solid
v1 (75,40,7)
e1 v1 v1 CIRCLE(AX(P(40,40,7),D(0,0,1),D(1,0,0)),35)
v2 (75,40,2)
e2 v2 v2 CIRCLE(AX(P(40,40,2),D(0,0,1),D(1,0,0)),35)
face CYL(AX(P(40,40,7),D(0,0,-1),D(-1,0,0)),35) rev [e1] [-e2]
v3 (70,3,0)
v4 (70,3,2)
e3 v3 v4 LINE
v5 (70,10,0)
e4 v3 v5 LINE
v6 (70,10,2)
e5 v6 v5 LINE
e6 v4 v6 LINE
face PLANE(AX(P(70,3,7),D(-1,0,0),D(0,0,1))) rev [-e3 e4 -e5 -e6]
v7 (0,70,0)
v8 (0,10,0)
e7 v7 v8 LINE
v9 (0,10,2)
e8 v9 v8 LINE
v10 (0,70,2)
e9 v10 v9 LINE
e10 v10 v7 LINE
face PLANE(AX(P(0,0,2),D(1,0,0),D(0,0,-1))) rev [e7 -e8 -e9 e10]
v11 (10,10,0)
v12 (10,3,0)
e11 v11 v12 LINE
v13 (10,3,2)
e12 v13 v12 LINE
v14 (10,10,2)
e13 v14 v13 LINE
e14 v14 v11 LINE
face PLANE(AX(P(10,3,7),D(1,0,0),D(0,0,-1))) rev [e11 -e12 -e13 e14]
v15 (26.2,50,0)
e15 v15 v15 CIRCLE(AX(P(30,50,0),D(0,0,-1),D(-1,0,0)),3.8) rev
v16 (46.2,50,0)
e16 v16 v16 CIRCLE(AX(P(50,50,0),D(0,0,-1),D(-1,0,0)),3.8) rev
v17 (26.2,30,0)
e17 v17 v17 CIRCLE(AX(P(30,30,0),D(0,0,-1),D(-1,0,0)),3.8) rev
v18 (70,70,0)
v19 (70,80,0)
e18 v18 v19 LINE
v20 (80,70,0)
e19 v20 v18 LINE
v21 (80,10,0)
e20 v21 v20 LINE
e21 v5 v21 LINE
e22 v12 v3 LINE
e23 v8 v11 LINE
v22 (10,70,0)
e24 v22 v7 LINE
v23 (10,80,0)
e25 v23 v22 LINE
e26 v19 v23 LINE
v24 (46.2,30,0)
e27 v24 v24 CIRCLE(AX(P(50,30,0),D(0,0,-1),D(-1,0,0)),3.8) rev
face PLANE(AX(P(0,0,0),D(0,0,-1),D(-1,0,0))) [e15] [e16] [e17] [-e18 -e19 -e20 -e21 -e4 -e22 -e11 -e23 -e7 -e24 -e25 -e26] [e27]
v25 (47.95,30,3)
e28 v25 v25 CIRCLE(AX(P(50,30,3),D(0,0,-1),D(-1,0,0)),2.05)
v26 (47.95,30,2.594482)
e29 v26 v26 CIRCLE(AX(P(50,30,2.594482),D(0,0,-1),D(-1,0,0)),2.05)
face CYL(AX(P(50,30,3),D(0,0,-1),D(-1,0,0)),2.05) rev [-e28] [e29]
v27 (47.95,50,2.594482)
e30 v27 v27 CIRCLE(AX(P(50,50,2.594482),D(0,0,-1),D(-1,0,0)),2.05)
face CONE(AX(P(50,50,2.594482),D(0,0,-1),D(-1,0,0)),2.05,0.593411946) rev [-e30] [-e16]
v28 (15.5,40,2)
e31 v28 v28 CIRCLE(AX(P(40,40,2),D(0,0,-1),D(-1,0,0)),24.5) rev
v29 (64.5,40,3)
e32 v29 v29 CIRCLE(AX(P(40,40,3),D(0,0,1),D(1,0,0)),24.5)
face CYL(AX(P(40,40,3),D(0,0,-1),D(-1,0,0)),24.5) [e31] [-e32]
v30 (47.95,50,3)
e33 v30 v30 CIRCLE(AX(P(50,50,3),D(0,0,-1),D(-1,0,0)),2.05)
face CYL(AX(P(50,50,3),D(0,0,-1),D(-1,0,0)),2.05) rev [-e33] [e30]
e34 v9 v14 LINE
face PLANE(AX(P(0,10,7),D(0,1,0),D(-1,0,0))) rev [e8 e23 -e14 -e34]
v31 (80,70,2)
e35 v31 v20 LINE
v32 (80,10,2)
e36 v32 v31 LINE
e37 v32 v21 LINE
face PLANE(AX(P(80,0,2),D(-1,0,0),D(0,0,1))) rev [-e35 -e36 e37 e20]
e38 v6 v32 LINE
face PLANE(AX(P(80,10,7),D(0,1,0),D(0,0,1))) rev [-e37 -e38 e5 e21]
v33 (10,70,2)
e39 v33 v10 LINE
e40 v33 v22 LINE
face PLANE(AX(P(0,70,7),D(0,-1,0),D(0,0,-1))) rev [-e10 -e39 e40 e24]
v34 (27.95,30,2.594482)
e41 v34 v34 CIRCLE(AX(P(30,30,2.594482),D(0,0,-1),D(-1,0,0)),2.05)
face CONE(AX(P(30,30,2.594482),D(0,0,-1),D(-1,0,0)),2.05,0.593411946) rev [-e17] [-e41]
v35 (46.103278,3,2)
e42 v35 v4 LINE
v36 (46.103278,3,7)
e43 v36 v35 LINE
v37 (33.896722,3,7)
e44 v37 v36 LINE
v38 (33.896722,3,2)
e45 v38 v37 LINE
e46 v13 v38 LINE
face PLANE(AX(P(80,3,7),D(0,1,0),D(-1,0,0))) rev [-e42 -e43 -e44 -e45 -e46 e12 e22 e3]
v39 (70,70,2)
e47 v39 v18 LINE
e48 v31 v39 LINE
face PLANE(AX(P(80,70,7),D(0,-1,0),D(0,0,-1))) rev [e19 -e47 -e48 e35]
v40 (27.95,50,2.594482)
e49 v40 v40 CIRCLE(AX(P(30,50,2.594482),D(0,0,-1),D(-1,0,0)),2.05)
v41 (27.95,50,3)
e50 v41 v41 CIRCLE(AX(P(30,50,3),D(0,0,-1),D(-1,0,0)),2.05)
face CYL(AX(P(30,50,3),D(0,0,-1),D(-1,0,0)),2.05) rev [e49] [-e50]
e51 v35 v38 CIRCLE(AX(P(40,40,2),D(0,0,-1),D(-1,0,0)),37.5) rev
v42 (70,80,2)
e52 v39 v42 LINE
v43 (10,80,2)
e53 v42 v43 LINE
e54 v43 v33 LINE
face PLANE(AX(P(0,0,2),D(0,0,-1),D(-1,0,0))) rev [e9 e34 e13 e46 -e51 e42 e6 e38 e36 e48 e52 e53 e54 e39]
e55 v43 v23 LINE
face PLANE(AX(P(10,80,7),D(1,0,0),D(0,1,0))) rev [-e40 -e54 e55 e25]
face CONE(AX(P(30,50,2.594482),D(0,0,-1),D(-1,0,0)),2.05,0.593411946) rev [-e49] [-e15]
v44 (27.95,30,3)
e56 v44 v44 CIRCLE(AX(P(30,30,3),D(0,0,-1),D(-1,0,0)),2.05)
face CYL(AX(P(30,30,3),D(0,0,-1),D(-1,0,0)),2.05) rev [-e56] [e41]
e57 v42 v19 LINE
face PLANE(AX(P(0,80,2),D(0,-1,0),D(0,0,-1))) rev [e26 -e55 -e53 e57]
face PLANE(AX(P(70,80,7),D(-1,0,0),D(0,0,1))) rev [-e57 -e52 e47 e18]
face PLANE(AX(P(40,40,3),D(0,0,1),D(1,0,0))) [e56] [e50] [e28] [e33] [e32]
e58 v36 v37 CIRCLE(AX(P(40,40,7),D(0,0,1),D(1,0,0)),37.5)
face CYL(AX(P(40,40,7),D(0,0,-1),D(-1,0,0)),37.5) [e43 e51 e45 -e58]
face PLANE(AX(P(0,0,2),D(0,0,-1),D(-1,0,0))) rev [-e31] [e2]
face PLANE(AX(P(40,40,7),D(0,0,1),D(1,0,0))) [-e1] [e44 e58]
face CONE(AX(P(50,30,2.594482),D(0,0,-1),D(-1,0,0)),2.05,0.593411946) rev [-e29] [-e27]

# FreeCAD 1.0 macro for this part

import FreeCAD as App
import Part
import Sketcher


def edges_at(feature, points):
    """Names of the edges that pass closest to the given points."""
    edges = feature.Shape.Edges
    near = lambda p: min(range(len(edges)), key=lambda i: edges[i].distToShape(Part.Vertex(*p))[0])
    return sorted({f"Edge{near(p) + 1}" for p in points})

doc = App.newDocument("Part")
params = doc.addObject("Spreadsheet::Sheet", "Params")
for row, (alias, value) in enumerate([
    ("sketch1_width", "80 mm"),
    ("pad1_length", "2 mm"),
    ("sketch2_diameter", "49 mm"),
    ("pad2_length", "1 mm"),
    ("sketch3_diameter", "4.1 mm"),
    ("chamfer_size", "1.75 mm"),
    ("chamfer_size2", "2.594482 mm"),
    ("sketch4_diameter", "75 mm"),
    ("sketch4_diameter2", "70 mm"),
    ("pad3_length", "5 mm"),
    ("sketch5_width", "80 mm"),
    ("sketch5_height", "3 mm"),
    ("sketch6_width", "10 mm"),
    ("sketch6_height", "7 mm"),
], start=1):
    params.set(f"A{row}", alias)
    params.set(f"B{row}", "=" + value)
    params.setAlias(f"B{row}", alias)

body = doc.addObject("PartDesign::Body", "Body")

# Sketch on XY plane
sketch1 = body.newObject("Sketcher::SketchObject", "Sketch")
sketch1.AttachmentSupport = (doc.getObject("XY_Plane"), [""])
sketch1.MapMode = "FlatFace"
sketch1.addGeometry([
    Part.LineSegment(App.Vector(0, 80, 0), App.Vector(0, 0, 0)),
    Part.LineSegment(App.Vector(0, 0, 0), App.Vector(80, 0, 0)),
    Part.LineSegment(App.Vector(80, 0, 0), App.Vector(80, 80, 0)),
    Part.LineSegment(App.Vector(80, 80, 0), App.Vector(0, 80, 0)),
], False)
sketch1.addConstraint([
    Sketcher.Constraint("Coincident", 0, 2, 1, 1),
    Sketcher.Constraint("Coincident", 1, 2, 2, 1),
    Sketcher.Constraint("Coincident", 2, 2, 3, 1),
    Sketcher.Constraint("Coincident", 3, 2, 0, 1),
    Sketcher.Constraint("Vertical", 0),
    Sketcher.Constraint("Horizontal", 1),
    Sketcher.Constraint("Vertical", 2),
    Sketcher.Constraint("Horizontal", 3),
    Sketcher.Constraint("Coincident", 0, 2, -1, 1),
    Sketcher.Constraint("Equal", 3, 0),
    Sketcher.Constraint("DistanceX", 1, 1, 1, 2, 80.0),
])
sketch1.setExpression("Constraints[10]", "Params.sketch1_width")
pad1 = body.newObject("PartDesign::Pad", "Pad")
pad1.Profile = sketch1
pad1.setExpression("Length", "Params.pad1_length")

# Sketch on XY plane
sketch2 = body.newObject("Sketcher::SketchObject", "Sketch001")
sketch2.AttachmentSupport = (doc.getObject("XY_Plane"), [""])
sketch2.MapMode = "FlatFace"
sketch2.AttachmentOffset = App.Placement(App.Vector(0, 0, 2), App.Rotation())
sketch2.addGeometry(Part.Circle(App.Vector(40, 40, 0), App.Vector(0, 0, 1), 24), False)
sketch2.addConstraint([
    Sketcher.Constraint("Diameter", 0, 49.0),
    Sketcher.Constraint("DistanceX", -1, 1, 0, 3, 40.0),
    Sketcher.Constraint("DistanceY", -1, 1, 0, 3, 40.0),
])
sketch2.setExpression("Constraints[0]", "Params.sketch2_diameter")
pad2 = body.newObject("PartDesign::Pad", "Pad001")
pad2.Profile = sketch2
pad2.setExpression("Length", "Params.pad2_length")

# Sketch on XY plane
sketch3 = body.newObject("Sketcher::SketchObject", "Sketch002")
sketch3.AttachmentSupport = (doc.getObject("XY_Plane"), [""])
sketch3.MapMode = "FlatFace"
sketch3.addGeometry([
    Part.Circle(App.Vector(50, 50, 0), App.Vector(0, 0, 1), 2),
    Part.Circle(App.Vector(50, 30, 0), App.Vector(0, 0, 1), 2),
    Part.Circle(App.Vector(30, 30, 0), App.Vector(0, 0, 1), 2),
    Part.Circle(App.Vector(30, 50, 0), App.Vector(0, 0, 1), 2),
], False)
sketch3.addConstraint([
    Sketcher.Constraint("Equal", 0, 1),
    Sketcher.Constraint("Equal", 1, 2),
    Sketcher.Constraint("Equal", 2, 3),
    Sketcher.Constraint("Horizontal", 1, 3, 2, 3),
    Sketcher.Constraint("Horizontal", 0, 3, 3, 3),
    Sketcher.Constraint("Vertical", 0, 3, 1, 3),
    Sketcher.Constraint("Vertical", 2, 3, 3, 3),
    Sketcher.Constraint("Diameter", 0, 4.1),
    Sketcher.Constraint("DistanceX", -1, 1, 0, 3, 50.0),
    Sketcher.Constraint("DistanceY", -1, 1, 0, 3, 50.0),
    Sketcher.Constraint("DistanceY", -1, 1, 1, 3, 30.0),
    Sketcher.Constraint("DistanceX", -1, 1, 2, 3, 30.0),
])
sketch3.setExpression("Constraints[7]", "Params.sketch3_diameter")
pocket1 = body.newObject("PartDesign::Pocket", "Pocket")
pocket1.Profile = sketch3
pocket1.Type = "ThroughAll"
pocket1.Reversed = True
doc.recompute()

chamfer = body.newObject("PartDesign::Chamfer", "Chamfer")
chamfer.Base = (pocket1, edges_at(pocket1, [
    (52.05, 50, 0),
    (52.05, 30, 0),
    (32.05, 30, 0),
    (32.05, 50, 0),
]))
chamfer.ChamferType = "Two distances"
chamfer.setExpression("Size", "Params.chamfer_size")
chamfer.setExpression("Size2", "Params.chamfer_size2")

# Sketch on XY plane
sketch4 = body.newObject("Sketcher::SketchObject", "Sketch003")
sketch4.AttachmentSupport = (doc.getObject("XY_Plane"), [""])
sketch4.MapMode = "FlatFace"
sketch4.AttachmentOffset = App.Placement(App.Vector(0, 0, 2), App.Rotation())
sketch4.addGeometry([
    Part.Circle(App.Vector(40, 40, 0), App.Vector(0, 0, 1), 38),
    Part.Circle(App.Vector(40, 40, 0), App.Vector(0, 0, 1), 35),
], False)
sketch4.addConstraint([
    Sketcher.Constraint("Coincident", 1, 3, 0, 3),
    Sketcher.Constraint("Diameter", 0, 75.0),
    Sketcher.Constraint("Diameter", 1, 70.0),
    Sketcher.Constraint("DistanceX", -1, 1, 0, 3, 40.0),
    Sketcher.Constraint("DistanceY", -1, 1, 0, 3, 40.0),
])
sketch4.setExpression("Constraints[1]", "Params.sketch4_diameter")
sketch4.setExpression("Constraints[2]", "Params.sketch4_diameter2")
pad3 = body.newObject("PartDesign::Pad", "Pad002")
pad3.Profile = sketch4
pad3.setExpression("Length", "Params.pad3_length")

# Sketch on XY plane
sketch5 = body.newObject("Sketcher::SketchObject", "Sketch004")
sketch5.AttachmentSupport = (doc.getObject("XY_Plane"), [""])
sketch5.MapMode = "FlatFace"
sketch5.addGeometry([
    Part.LineSegment(App.Vector(80, 3, 0), App.Vector(80, 0, 0)),
    Part.LineSegment(App.Vector(80, 0, 0), App.Vector(0, 0, 0)),
    Part.LineSegment(App.Vector(0, 0, 0), App.Vector(0, 3, 0)),
    Part.LineSegment(App.Vector(0, 3, 0), App.Vector(80, 3, 0)),
], False)
sketch5.addConstraint([
    Sketcher.Constraint("Coincident", 0, 2, 1, 1),
    Sketcher.Constraint("Coincident", 1, 2, 2, 1),
    Sketcher.Constraint("Coincident", 2, 2, 3, 1),
    Sketcher.Constraint("Coincident", 3, 2, 0, 1),
    Sketcher.Constraint("Vertical", 0),
    Sketcher.Constraint("Horizontal", 1),
    Sketcher.Constraint("Vertical", 2),
    Sketcher.Constraint("Horizontal", 3),
    Sketcher.Constraint("Coincident", 1, 2, -1, 1),
    Sketcher.Constraint("DistanceX", 1, 2, 1, 1, 80.0),
    Sketcher.Constraint("DistanceY", 0, 2, 0, 1, 3.0),
])
sketch5.setExpression("Constraints[9]", "Params.sketch5_width")
sketch5.setExpression("Constraints[10]", "Params.sketch5_height")
pocket2 = body.newObject("PartDesign::Pocket", "Pocket001")
pocket2.Profile = sketch5
pocket2.Type = "ThroughAll"
pocket2.Reversed = True

# Sketch on XY plane
sketch6 = body.newObject("Sketcher::SketchObject", "Sketch005")
sketch6.AttachmentSupport = (doc.getObject("XY_Plane"), [""])
sketch6.MapMode = "FlatFace"
sketch6.addGeometry([
    Part.LineSegment(App.Vector(80, 80, 0), App.Vector(80, 70, 0)),  # 0
    Part.LineSegment(App.Vector(80, 70, 0), App.Vector(70, 70, 0)),  # 1
    Part.LineSegment(App.Vector(70, 70, 0), App.Vector(70, 80, 0)),  # 2
    Part.LineSegment(App.Vector(70, 80, 0), App.Vector(80, 80, 0)),  # 3
    Part.LineSegment(App.Vector(10, 80, 0), App.Vector(10, 70, 0)),  # 4
    Part.LineSegment(App.Vector(10, 70, 0), App.Vector(0, 70, 0)),  # 5
    Part.LineSegment(App.Vector(0, 70, 0), App.Vector(0, 80, 0)),  # 6
    Part.LineSegment(App.Vector(0, 80, 0), App.Vector(10, 80, 0)),  # 7
    Part.LineSegment(App.Vector(10, 10, 0), App.Vector(10, 3, 0)),  # 8
    Part.LineSegment(App.Vector(10, 3, 0), App.Vector(0, 3, 0)),  # 9
    Part.LineSegment(App.Vector(0, 3, 0), App.Vector(0, 10, 0)),  # 10
    Part.LineSegment(App.Vector(0, 10, 0), App.Vector(10, 10, 0)),  # 11
    Part.LineSegment(App.Vector(80, 10, 0), App.Vector(80, 3, 0)),  # 12
    Part.LineSegment(App.Vector(80, 3, 0), App.Vector(70, 3, 0)),  # 13
    Part.LineSegment(App.Vector(70, 3, 0), App.Vector(70, 10, 0)),  # 14
    Part.LineSegment(App.Vector(70, 10, 0), App.Vector(80, 10, 0)),  # 15
], False)
sketch6.addConstraint([
    Sketcher.Constraint("Coincident", 0, 2, 1, 1),
    Sketcher.Constraint("Coincident", 1, 2, 2, 1),
    Sketcher.Constraint("Coincident", 2, 2, 3, 1),
    Sketcher.Constraint("Coincident", 3, 2, 0, 1),
    Sketcher.Constraint("Coincident", 4, 2, 5, 1),
    Sketcher.Constraint("Coincident", 5, 2, 6, 1),
    Sketcher.Constraint("Coincident", 6, 2, 7, 1),
    Sketcher.Constraint("Coincident", 7, 2, 4, 1),
    Sketcher.Constraint("Coincident", 8, 2, 9, 1),
    Sketcher.Constraint("Coincident", 9, 2, 10, 1),
    Sketcher.Constraint("Coincident", 10, 2, 11, 1),
    Sketcher.Constraint("Coincident", 11, 2, 8, 1),
    Sketcher.Constraint("Coincident", 12, 2, 13, 1),
    Sketcher.Constraint("Coincident", 13, 2, 14, 1),
    Sketcher.Constraint("Coincident", 14, 2, 15, 1),
    Sketcher.Constraint("Coincident", 15, 2, 12, 1),
    Sketcher.Constraint("Vertical", 0),
    Sketcher.Constraint("Horizontal", 1),
    Sketcher.Constraint("Vertical", 2),
    Sketcher.Constraint("Horizontal", 3),
    Sketcher.Constraint("Vertical", 4),
    Sketcher.Constraint("Horizontal", 5),
    Sketcher.Constraint("Vertical", 6),
    Sketcher.Constraint("Horizontal", 7),
    Sketcher.Constraint("Vertical", 8),
    Sketcher.Constraint("Horizontal", 9),
    Sketcher.Constraint("Vertical", 10),
    Sketcher.Constraint("Horizontal", 11),
    Sketcher.Constraint("Vertical", 12),
    Sketcher.Constraint("Horizontal", 13),
    Sketcher.Constraint("Vertical", 14),
    Sketcher.Constraint("Horizontal", 15),
    Sketcher.Constraint("PointOnObject", 5, 2, -2),
    Sketcher.Constraint("PointOnObject", 9, 2, -2),
    Sketcher.Constraint("Horizontal", 1, 2, 4, 2),
    Sketcher.Constraint("Horizontal", 3, 2, 6, 2),
    Sketcher.Constraint("Horizontal", 9, 2, 12, 2),
    Sketcher.Constraint("Horizontal", 11, 2, 14, 2),
    Sketcher.Constraint("Vertical", 7, 2, 8, 2),
    Sketcher.Constraint("Vertical", 3, 2, 12, 2),
    Sketcher.Constraint("Vertical", 2, 2, 13, 2),
    Sketcher.Constraint("Equal", 3, 5),
    Sketcher.Constraint("Equal", 15, 0),
    Sketcher.Constraint("DistanceX", 1, 2, 1, 1, 10.0),
    Sketcher.Constraint("DistanceY", 8, 2, 8, 1, 7.0),
    Sketcher.Constraint("DistanceX", -1, 1, 0, 2, 80.0),
    Sketcher.Constraint("DistanceY", -1, 1, 0, 2, 70.0),
    Sketcher.Constraint("DistanceY", -1, 1, 8, 2, 3.0),
])
sketch6.setExpression("Constraints[43]", "Params.sketch6_width")
sketch6.setExpression("Constraints[44]", "Params.sketch6_height")
pocket3 = body.newObject("PartDesign::Pocket", "Pocket002")
pocket3.Profile = sketch6
pocket3.Type = "ThroughAll"
pocket3.Reversed = True

doc.recompute()
